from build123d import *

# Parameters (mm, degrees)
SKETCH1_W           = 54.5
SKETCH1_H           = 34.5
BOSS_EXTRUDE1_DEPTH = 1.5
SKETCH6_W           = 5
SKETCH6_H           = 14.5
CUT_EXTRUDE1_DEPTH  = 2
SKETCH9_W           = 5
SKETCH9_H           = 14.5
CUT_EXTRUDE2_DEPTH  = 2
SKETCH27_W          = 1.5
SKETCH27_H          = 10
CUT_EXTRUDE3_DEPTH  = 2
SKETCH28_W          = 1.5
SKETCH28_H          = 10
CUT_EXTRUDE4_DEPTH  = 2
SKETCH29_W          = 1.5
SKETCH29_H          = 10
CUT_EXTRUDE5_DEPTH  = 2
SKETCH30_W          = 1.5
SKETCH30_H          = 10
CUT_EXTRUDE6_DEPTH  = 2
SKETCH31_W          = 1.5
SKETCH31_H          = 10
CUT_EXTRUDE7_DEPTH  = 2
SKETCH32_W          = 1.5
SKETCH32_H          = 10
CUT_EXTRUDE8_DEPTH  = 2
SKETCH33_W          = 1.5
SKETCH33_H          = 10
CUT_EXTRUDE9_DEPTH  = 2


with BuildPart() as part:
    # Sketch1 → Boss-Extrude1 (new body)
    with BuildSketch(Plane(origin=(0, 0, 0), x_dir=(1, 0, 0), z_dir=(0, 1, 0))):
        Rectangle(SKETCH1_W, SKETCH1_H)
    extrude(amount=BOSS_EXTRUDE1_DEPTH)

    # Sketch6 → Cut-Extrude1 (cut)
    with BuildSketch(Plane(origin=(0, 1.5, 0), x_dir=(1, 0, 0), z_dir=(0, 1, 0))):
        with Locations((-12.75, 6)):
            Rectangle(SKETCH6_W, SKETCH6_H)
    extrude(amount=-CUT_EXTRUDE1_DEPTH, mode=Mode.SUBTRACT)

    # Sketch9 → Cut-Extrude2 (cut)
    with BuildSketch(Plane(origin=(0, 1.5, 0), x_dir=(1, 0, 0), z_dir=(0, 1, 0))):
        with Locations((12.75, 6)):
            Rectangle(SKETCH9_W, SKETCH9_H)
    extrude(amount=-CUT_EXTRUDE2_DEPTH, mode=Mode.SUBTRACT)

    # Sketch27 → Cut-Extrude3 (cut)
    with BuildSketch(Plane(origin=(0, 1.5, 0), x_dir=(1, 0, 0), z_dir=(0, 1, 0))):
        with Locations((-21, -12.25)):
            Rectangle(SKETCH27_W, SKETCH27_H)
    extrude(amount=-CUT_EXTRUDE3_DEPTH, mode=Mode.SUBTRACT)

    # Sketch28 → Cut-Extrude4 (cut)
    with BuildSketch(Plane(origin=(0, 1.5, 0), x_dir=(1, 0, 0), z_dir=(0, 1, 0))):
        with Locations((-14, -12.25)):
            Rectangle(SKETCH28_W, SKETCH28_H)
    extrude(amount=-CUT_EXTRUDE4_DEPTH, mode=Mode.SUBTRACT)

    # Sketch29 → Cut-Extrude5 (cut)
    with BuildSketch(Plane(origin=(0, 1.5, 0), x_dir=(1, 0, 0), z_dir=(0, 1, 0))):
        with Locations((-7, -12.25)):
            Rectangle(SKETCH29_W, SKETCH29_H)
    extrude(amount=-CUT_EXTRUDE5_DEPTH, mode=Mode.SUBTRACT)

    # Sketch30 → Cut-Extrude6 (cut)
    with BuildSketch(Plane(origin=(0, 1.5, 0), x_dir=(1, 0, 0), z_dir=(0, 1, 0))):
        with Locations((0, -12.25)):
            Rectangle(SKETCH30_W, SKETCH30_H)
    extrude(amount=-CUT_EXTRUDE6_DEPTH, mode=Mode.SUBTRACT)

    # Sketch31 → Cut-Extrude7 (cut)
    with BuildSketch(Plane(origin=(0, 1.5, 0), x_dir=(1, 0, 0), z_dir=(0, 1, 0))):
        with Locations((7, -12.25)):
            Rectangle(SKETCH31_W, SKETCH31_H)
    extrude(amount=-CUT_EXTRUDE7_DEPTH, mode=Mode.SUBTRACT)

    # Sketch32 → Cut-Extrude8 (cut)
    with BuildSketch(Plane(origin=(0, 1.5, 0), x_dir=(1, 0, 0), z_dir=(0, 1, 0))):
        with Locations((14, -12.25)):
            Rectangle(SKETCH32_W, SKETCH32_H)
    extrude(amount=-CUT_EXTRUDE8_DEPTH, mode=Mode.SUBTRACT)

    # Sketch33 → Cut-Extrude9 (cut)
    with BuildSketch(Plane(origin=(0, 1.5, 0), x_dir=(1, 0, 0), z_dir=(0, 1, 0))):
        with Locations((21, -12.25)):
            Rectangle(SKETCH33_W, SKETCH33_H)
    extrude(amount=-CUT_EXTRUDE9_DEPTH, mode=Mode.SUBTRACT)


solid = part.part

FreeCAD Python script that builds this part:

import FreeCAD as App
import Part
import Sketcher
from FreeCAD import Vector

doc = App.newDocument("Part")
body = doc.addObject("PartDesign::Body", "Body")

# Sketch on XZ plane
sketch1 = doc.addObject("Sketcher::SketchObject", "Sketch")
body.addObject(sketch1)
sketch1.AttachmentSupport = (doc.XZ_Plane, [""])
sketch1.MapMode = "FlatFace"
sketch1.addGeometry(Part.LineSegment(Vector(-27.25, -17.25, 0), Vector(-27.25, 17.25, 0)), False)
sketch1.addGeometry(Part.LineSegment(Vector(-27.25, 17.25, 0), Vector(27.25, 17.25, 0)), False)
sketch1.addGeometry(Part.LineSegment(Vector(27.25, 17.25, 0), Vector(27.25, -17.25, 0)), False)
sketch1.addGeometry(Part.LineSegment(Vector(27.25, -17.25, 0), Vector(-27.25, -17.25, 0)), False)
sketch1.addConstraint(Sketcher.Constraint("Coincident", 0, 2, 1, 1))
sketch1.addConstraint(Sketcher.Constraint("Coincident", 1, 2, 2, 1))
sketch1.addConstraint(Sketcher.Constraint("Coincident", 2, 2, 3, 1))
sketch1.addConstraint(Sketcher.Constraint("Coincident", 3, 2, 0, 1))
sketch1.addConstraint(Sketcher.Constraint("Vertical", 0))
sketch1.addConstraint(Sketcher.Constraint("Horizontal", 1))
sketch1.addConstraint(Sketcher.Constraint("Vertical", 2))
sketch1.addConstraint(Sketcher.Constraint("Horizontal", 3))
sketch1.addConstraint(Sketcher.Constraint("Symmetric", 0, 2, 2, 2, -1, 1))
sketch1.addConstraint(Sketcher.Constraint("DistanceX", 1, 1, 1, 2, 54.5))
sketch1.addConstraint(Sketcher.Constraint("DistanceY", 0, 1, 0, 2, 34.5))
pad1 = doc.addObject("PartDesign::Pad", "Pad")
body.addObject(pad1)
pad1.Profile = sketch1
pad1.Length = 1.5
pad1.Reversed = True

# Sketch on XZ plane
sketch2 = doc.addObject("Sketcher::SketchObject", "Sketch001")
body.addObject(sketch2)
sketch2.AttachmentSupport = (doc.XZ_Plane, [""])
sketch2.MapMode = "FlatFace"
sketch2.AttachmentOffset = App.Placement(Vector(0, 0, -1.5), App.Rotation())
sketch2.addGeometry(Part.LineSegment(Vector(-15.25, -13.25, 0), Vector(-15.25, 1.25, 0)), False)
sketch2.addGeometry(Part.LineSegment(Vector(-15.25, 1.25, 0), Vector(-10.25, 1.25, 0)), False)
sketch2.addGeometry(Part.LineSegment(Vector(-10.25, 1.25, 0), Vector(-10.25, -13.25, 0)), False)
sketch2.addGeometry(Part.LineSegment(Vector(-10.25, -13.25, 0), Vector(-15.25, -13.25, 0)), False)
sketch2.addConstraint(Sketcher.Constraint("Coincident", 0, 2, 1, 1))
sketch2.addConstraint(Sketcher.Constraint("Coincident", 1, 2, 2, 1))
sketch2.addConstraint(Sketcher.Constraint("Coincident", 2, 2, 3, 1))
sketch2.addConstraint(Sketcher.Constraint("Coincident", 3, 2, 0, 1))
sketch2.addConstraint(Sketcher.Constraint("Vertical", 0))
sketch2.addConstraint(Sketcher.Constraint("Horizontal", 1))
sketch2.addConstraint(Sketcher.Constraint("Vertical", 2))
sketch2.addConstraint(Sketcher.Constraint("Horizontal", 3))
sketch2.addConstraint(Sketcher.Constraint("DistanceX", 1, 1, 1, 2, 5.0))
sketch2.addConstraint(Sketcher.Constraint("DistanceY", 0, 1, 0, 2, 14.5))
sketch2.addConstraint(Sketcher.Constraint("DistanceX", 0, 2, -1, 1, 15.25))
sketch2.addConstraint(Sketcher.Constraint("DistanceY", -1, 1, 0, 2, 1.25))
pocket1 = doc.addObject("PartDesign::Pocket", "Pocket")
body.addObject(pocket1)
pocket1.Profile = sketch2
pocket1.Length = 2
pocket1.Reversed = True

# Sketch on XZ plane
sketch3 = doc.addObject("Sketcher::SketchObject", "Sketch002")
body.addObject(sketch3)
sketch3.AttachmentSupport = (doc.XZ_Plane, [""])
sketch3.MapMode = "FlatFace"
sketch3.AttachmentOffset = App.Placement(Vector(0, 0, -1.5), App.Rotation())
sketch3.addGeometry(Part.LineSegment(Vector(10.25, -13.25, 0), Vector(10.25, 1.25, 0)), False)
sketch3.addGeometry(Part.LineSegment(Vector(10.25, 1.25, 0), Vector(15.25, 1.25, 0)), False)
sketch3.addGeometry(Part.LineSegment(Vector(15.25, 1.25, 0), Vector(15.25, -13.25, 0)), False)
sketch3.addGeometry(Part.LineSegment(Vector(15.25, -13.25, 0), Vector(10.25, -13.25, 0)), False)
sketch3.addConstraint(Sketcher.Constraint("Coincident", 0, 2, 1, 1))
sketch3.addConstraint(Sketcher.Constraint("Coincident", 1, 2, 2, 1))
sketch3.addConstraint(Sketcher.Constraint("Coincident", 2, 2, 3, 1))
sketch3.addConstraint(Sketcher.Constraint("Coincident", 3, 2, 0, 1))
sketch3.addConstraint(Sketcher.Constraint("Vertical", 0))
sketch3.addConstraint(Sketcher.Constraint("Horizontal", 1))
sketch3.addConstraint(Sketcher.Constraint("Vertical", 2))
sketch3.addConstraint(Sketcher.Constraint("Horizontal", 3))
sketch3.addConstraint(Sketcher.Constraint("DistanceX", 1, 1, 1, 2, 5.0))
sketch3.addConstraint(Sketcher.Constraint("DistanceY", 0, 1, 0, 2, 14.5))
sketch3.addConstraint(Sketcher.Constraint("DistanceX", -1, 1, 0, 2, 10.25))
sketch3.addConstraint(Sketcher.Constraint("DistanceY", -1, 1, 0, 2, 1.25))
pocket2 = doc.addObject("PartDesign::Pocket", "Pocket001")
body.addObject(pocket2)
pocket2.Profile = sketch3
pocket2.Length = 2
pocket2.Reversed = True

# Sketch on XZ plane
sketch4 = doc.addObject("Sketcher::SketchObject", "Sketch003")
body.addObject(sketch4)
sketch4.AttachmentSupport = (doc.XZ_Plane, [""])
sketch4.MapMode = "FlatFace"
sketch4.AttachmentOffset = App.Placement(Vector(0, 0, -1.5), App.Rotation())
sketch4.addGeometry(Part.LineSegment(Vector(-21.75, 7.25, 0), Vector(-21.75, 17.25, 0)), False)
sketch4.addGeometry(Part.LineSegment(Vector(-21.75, 17.25, 0), Vector(-20.25, 17.25, 0)), False)
sketch4.addGeometry(Part.LineSegment(Vector(-20.25, 17.25, 0), Vector(-20.25, 7.25, 0)), False)
sketch4.addGeometry(Part.LineSegment(Vector(-20.25, 7.25, 0), Vector(-21.75, 7.25, 0)), False)
sketch4.addConstraint(Sketcher.Constraint("Coincident", 0, 2, 1, 1))
sketch4.addConstraint(Sketcher.Constraint("Coincident", 1, 2, 2, 1))
sketch4.addConstraint(Sketcher.Constraint("Coincident", 2, 2, 3, 1))
sketch4.addConstraint(Sketcher.Constraint("Coincident", 3, 2, 0, 1))
sketch4.addConstraint(Sketcher.Constraint("Vertical", 0))
sketch4.addConstraint(Sketcher.Constraint("Horizontal", 1))
sketch4.addConstraint(Sketcher.Constraint("Vertical", 2))
sketch4.addConstraint(Sketcher.Constraint("Horizontal", 3))
sketch4.addConstraint(Sketcher.Constraint("DistanceY", 0, 1, 0, 2, 10.0))
sketch4.addConstraint(Sketcher.Constraint("DistanceX", 1, 1, 1, 2, 1.5))
sketch4.addConstraint(Sketcher.Constraint("DistanceX", 0, 2, -1, 1, 21.75))
sketch4.addConstraint(Sketcher.Constraint("DistanceY", -1, 1, 0, 2, 17.25))
pocket3 = doc.addObject("PartDesign::Pocket", "Pocket002")
body.addObject(pocket3)
pocket3.Profile = sketch4
pocket3.Length = 2
pocket3.Reversed = True

# Sketch on XZ plane
sketch5 = doc.addObject("Sketcher::SketchObject", "Sketch004")
body.addObject(sketch5)
sketch5.AttachmentSupport = (doc.XZ_Plane, [""])
sketch5.MapMode = "FlatFace"
sketch5.AttachmentOffset = App.Placement(Vector(0, 0, -1.5), App.Rotation())
sketch5.addGeometry(Part.LineSegment(Vector(-14.75, 7.25, 0), Vector(-14.75, 17.25, 0)), False)
sketch5.addGeometry(Part.LineSegment(Vector(-14.75, 17.25, 0), Vector(-13.25, 17.25, 0)), False)
sketch5.addGeometry(Part.LineSegment(Vector(-13.25, 17.25, 0), Vector(-13.25, 7.25, 0)), False)
sketch5.addGeometry(Part.LineSegment(Vector(-13.25, 7.25, 0), Vector(-14.75, 7.25, 0)), False)
sketch5.addConstraint(Sketcher.Constraint("Coincident", 0, 2, 1, 1))
sketch5.addConstraint(Sketcher.Constraint("Coincident", 1, 2, 2, 1))
sketch5.addConstraint(Sketcher.Constraint("Coincident", 2, 2, 3, 1))
sketch5.addConstraint(Sketcher.Constraint("Coincident", 3, 2, 0, 1))
sketch5.addConstraint(Sketcher.Constraint("Vertical", 0))
sketch5.addConstraint(Sketcher.Constraint("Horizontal", 1))
sketch5.addConstraint(Sketcher.Constraint("Vertical", 2))
sketch5.addConstraint(Sketcher.Constraint("Horizontal", 3))
sketch5.addConstraint(Sketcher.Constraint("DistanceY", 0, 1, 0, 2, 10.0))
sketch5.addConstraint(Sketcher.Constraint("DistanceX", 1, 1, 1, 2, 1.5))
sketch5.addConstraint(Sketcher.Constraint("DistanceX", 0, 2, -1, 1, 14.75))
sketch5.addConstraint(Sketcher.Constraint("DistanceY", -1, 1, 0, 2, 17.25))
pocket4 = doc.addObject("PartDesign::Pocket", "Pocket003")
body.addObject(pocket4)
pocket4.Profile = sketch5
pocket4.Length = 2
pocket4.Reversed = True

# Sketch on XZ plane
sketch6 = doc.addObject("Sketcher::SketchObject", "Sketch005")
body.addObject(sketch6)
sketch6.AttachmentSupport = (doc.XZ_Plane, [""])
sketch6.MapMode = "FlatFace"
sketch6.AttachmentOffset = App.Placement(Vector(0, 0, -1.5), App.Rotation())
sketch6.addGeometry(Part.LineSegment(Vector(-7.75, 7.25, 0), Vector(-7.75, 17.25, 0)), False)
sketch6.addGeometry(Part.LineSegment(Vector(-7.75, 17.25, 0), Vector(-6.25, 17.25, 0)), False)
sketch6.addGeometry(Part.LineSegment(Vector(-6.25, 17.25, 0), Vector(-6.25, 7.25, 0)), False)
sketch6.addGeometry(Part.LineSegment(Vector(-6.25, 7.25, 0), Vector(-7.75, 7.25, 0)), False)
sketch6.addConstraint(Sketcher.Constraint("Coincident", 0, 2, 1, 1))
sketch6.addConstraint(Sketcher.Constraint("Coincident", 1, 2, 2, 1))
sketch6.addConstraint(Sketcher.Constraint("Coincident", 2, 2, 3, 1))
sketch6.addConstraint(Sketcher.Constraint("Coincident", 3, 2, 0, 1))
sketch6.addConstraint(Sketcher.Constraint("Vertical", 0))
sketch6.addConstraint(Sketcher.Constraint("Horizontal", 1))
sketch6.addConstraint(Sketcher.Constraint("Vertical", 2))
sketch6.addConstraint(Sketcher.Constraint("Horizontal", 3))
sketch6.addConstraint(Sketcher.Constraint("DistanceY", 0, 1, 0, 2, 10.0))
sketch6.addConstraint(Sketcher.Constraint("DistanceX", 1, 1, 1, 2, 1.5))
sketch6.addConstraint(Sketcher.Constraint("DistanceX", 0, 2, -1, 1, 7.75))
sketch6.addConstraint(Sketcher.Constraint("DistanceY", -1, 1, 0, 2, 17.25))
pocket5 = doc.addObject("PartDesign::Pocket", "Pocket004")
body.addObject(pocket5)
pocket5.Profile = sketch6
pocket5.Length = 2
pocket5.Reversed = True

# Sketch on XZ plane
sketch7 = doc.addObject("Sketcher::SketchObject", "Sketch006")
body.addObject(sketch7)
sketch7.AttachmentSupport = (doc.XZ_Plane, [""])
sketch7.MapMode = "FlatFace"
sketch7.AttachmentOffset = App.Placement(Vector(0, 0, -1.5), App.Rotation())
sketch7.addGeometry(Part.LineSegment(Vector(-0.75, 7.25, 0), Vector(-0.75, 17.25, 0)), False)
sketch7.addGeometry(Part.LineSegment(Vector(-0.75, 17.25, 0), Vector(0.75, 17.25, 0)), False)
sketch7.addGeometry(Part.LineSegment(Vector(0.75, 17.25, 0), Vector(0.75, 7.25, 0)), False)
sketch7.addGeometry(Part.LineSegment(Vector(0.75, 7.25, 0), Vector(-0.75, 7.25, 0)), False)
sketch7.addConstraint(Sketcher.Constraint("Coincident", 0, 2, 1, 1))
sketch7.addConstraint(Sketcher.Constraint("Coincident", 1, 2, 2, 1))
sketch7.addConstraint(Sketcher.Constraint("Coincident", 2, 2, 3, 1))
sketch7.addConstraint(Sketcher.Constraint("Coincident", 3, 2, 0, 1))
sketch7.addConstraint(Sketcher.Constraint("Vertical", 0))
sketch7.addConstraint(Sketcher.Constraint("Horizontal", 1))
sketch7.addConstraint(Sketcher.Constraint("Vertical", 2))
sketch7.addConstraint(Sketcher.Constraint("Horizontal", 3))
sketch7.addConstraint(Sketcher.Constraint("DistanceY", 0, 1, 0, 2, 10.0))
sketch7.addConstraint(Sketcher.Constraint("DistanceX", 1, 1, 1, 2, 1.5))
sketch7.addConstraint(Sketcher.Constraint("DistanceX", 0, 2, -1, 1, 0.75))
sketch7.addConstraint(Sketcher.Constraint("DistanceY", -1, 1, 0, 2, 17.25))
pocket6 = doc.addObject("PartDesign::Pocket", "Pocket005")
body.addObject(pocket6)
pocket6.Profile = sketch7
pocket6.Length = 2
pocket6.Reversed = True

# Sketch on XZ plane
sketch8 = doc.addObject("Sketcher::SketchObject", "Sketch007")
body.addObject(sketch8)
sketch8.AttachmentSupport = (doc.XZ_Plane, [""])
sketch8.MapMode = "FlatFace"
sketch8.AttachmentOffset = App.Placement(Vector(0, 0, -1.5), App.Rotation())
sketch8.addGeometry(Part.LineSegment(Vector(6.25, 7.25, 0), Vector(6.25, 17.25, 0)), False)
sketch8.addGeometry(Part.LineSegment(Vector(6.25, 17.25, 0), Vector(7.75, 17.25, 0)), False)
sketch8.addGeometry(Part.LineSegment(Vector(7.75, 17.25, 0), Vector(7.75, 7.25, 0)), False)
sketch8.addGeometry(Part.LineSegment(Vector(7.75, 7.25, 0), Vector(6.25, 7.25, 0)), False)
sketch8.addConstraint(Sketcher.Constraint("Coincident", 0, 2, 1, 1))
sketch8.addConstraint(Sketcher.Constraint("Coincident", 1, 2, 2, 1))
sketch8.addConstraint(Sketcher.Constraint("Coincident", 2, 2, 3, 1))
sketch8.addConstraint(Sketcher.Constraint("Coincident", 3, 2, 0, 1))
sketch8.addConstraint(Sketcher.Constraint("Vertical", 0))
sketch8.addConstraint(Sketcher.Constraint("Horizontal", 1))
sketch8.addConstraint(Sketcher.Constraint("Vertical", 2))
sketch8.addConstraint(Sketcher.Constraint("Horizontal", 3))
sketch8.addConstraint(Sketcher.Constraint("DistanceY", 0, 1, 0, 2, 10.0))
sketch8.addConstraint(Sketcher.Constraint("DistanceX", 1, 1, 1, 2, 1.5))
sketch8.addConstraint(Sketcher.Constraint("DistanceX", -1, 1, 0, 2, 6.25))
sketch8.addConstraint(Sketcher.Constraint("DistanceY", -1, 1, 0, 2, 17.25))
pocket7 = doc.addObject("PartDesign::Pocket", "Pocket006")
body.addObject(pocket7)
pocket7.Profile = sketch8
pocket7.Length = 2
pocket7.Reversed = True

# Sketch on XZ plane
sketch9 = doc.addObject("Sketcher::SketchObject", "Sketch008")
body.addObject(sketch9)
sketch9.AttachmentSupport = (doc.XZ_Plane, [""])
sketch9.MapMode = "FlatFace"
sketch9.AttachmentOffset = App.Placement(Vector(0, 0, -1.5), App.Rotation())
sketch9.addGeometry(Part.LineSegment(Vector(13.25, 7.25, 0), Vector(13.25, 17.25, 0)), False)
sketch9.addGeometry(Part.LineSegment(Vector(13.25, 17.25, 0), Vector(14.75, 17.25, 0)), False)
sketch9.addGeometry(Part.LineSegment(Vector(14.75, 17.25, 0), Vector(14.75, 7.25, 0)), False)
sketch9.addGeometry(Part.LineSegment(Vector(14.75, 7.25, 0), Vector(13.25, 7.25, 0)), False)
sketch9.addConstraint(Sketcher.Constraint("Coincident", 0, 2, 1, 1))
sketch9.addConstraint(Sketcher.Constraint("Coincident", 1, 2, 2, 1))
sketch9.addConstraint(Sketcher.Constraint("Coincident", 2, 2, 3, 1))
sketch9.addConstraint(Sketcher.Constraint("Coincident", 3, 2, 0, 1))
sketch9.addConstraint(Sketcher.Constraint("Vertical", 0))
sketch9.addConstraint(Sketcher.Constraint("Horizontal", 1))
sketch9.addConstraint(Sketcher.Constraint("Vertical", 2))
sketch9.addConstraint(Sketcher.Constraint("Horizontal", 3))
sketch9.addConstraint(Sketcher.Constraint("DistanceY", 0, 1, 0, 2, 10.0))
sketch9.addConstraint(Sketcher.Constraint("DistanceX", 1, 1, 1, 2, 1.5))
sketch9.addConstraint(Sketcher.Constraint("DistanceX", -1, 1, 0, 2, 13.25))
sketch9.addConstraint(Sketcher.Constraint("DistanceY", -1, 1, 0, 2, 17.25))
pocket8 = doc.addObject("PartDesign::Pocket", "Pocket007")
body.addObject(pocket8)
pocket8.Profile = sketch9
pocket8.Length = 2
pocket8.Reversed = True

# Sketch on XZ plane
sketch10 = doc.addObject("Sketcher::SketchObject", "Sketch009")
body.addObject(sketch10)
sketch10.AttachmentSupport = (doc.XZ_Plane, [""])
sketch10.MapMode = "FlatFace"
sketch10.AttachmentOffset = App.Placement(Vector(0, 0, -1.5), App.Rotation())
sketch10.addGeometry(Part.LineSegment(Vector(20.25, 7.25, 0), Vector(20.25, 17.25, 0)), False)
sketch10.addGeometry(Part.LineSegment(Vector(20.25, 17.25, 0), Vector(21.75, 17.25, 0)), False)
sketch10.addGeometry(Part.LineSegment(Vector(21.75, 17.25, 0), Vector(21.75, 7.25, 0)), False)
sketch10.addGeometry(Part.LineSegment(Vector(21.75, 7.25, 0), Vector(20.25, 7.25, 0)), False)
sketch10.addConstraint(Sketcher.Constraint("Coincident", 0, 2, 1, 1))
sketch10.addConstraint(Sketcher.Constraint("Coincident", 1, 2, 2, 1))
sketch10.addConstraint(Sketcher.Constraint("Coincident", 2, 2, 3, 1))
sketch10.addConstraint(Sketcher.Constraint("Coincident", 3, 2, 0, 1))
sketch10.addConstraint(Sketcher.Constraint("Vertical", 0))
sketch10.addConstraint(Sketcher.Constraint("Horizontal", 1))
sketch10.addConstraint(Sketcher.Constraint("Vertical", 2))
sketch10.addConstraint(Sketcher.Constraint("Horizontal", 3))
sketch10.addConstraint(Sketcher.Constraint("DistanceY", 0, 1, 0, 2, 10.0))
sketch10.addConstraint(Sketcher.Constraint("DistanceX", 1, 1, 1, 2, 1.5))
sketch10.addConstraint(Sketcher.Constraint("DistanceX", -1, 1, 0, 2, 20.25))
sketch10.addConstraint(Sketcher.Constraint("DistanceY", -1, 1, 0, 2, 17.25))
pocket9 = doc.addObject("PartDesign::Pocket", "Pocket008")
body.addObject(pocket9)
pocket9.Profile = sketch10
pocket9.Length = 2
pocket9.Reversed = True

doc.recompute()
